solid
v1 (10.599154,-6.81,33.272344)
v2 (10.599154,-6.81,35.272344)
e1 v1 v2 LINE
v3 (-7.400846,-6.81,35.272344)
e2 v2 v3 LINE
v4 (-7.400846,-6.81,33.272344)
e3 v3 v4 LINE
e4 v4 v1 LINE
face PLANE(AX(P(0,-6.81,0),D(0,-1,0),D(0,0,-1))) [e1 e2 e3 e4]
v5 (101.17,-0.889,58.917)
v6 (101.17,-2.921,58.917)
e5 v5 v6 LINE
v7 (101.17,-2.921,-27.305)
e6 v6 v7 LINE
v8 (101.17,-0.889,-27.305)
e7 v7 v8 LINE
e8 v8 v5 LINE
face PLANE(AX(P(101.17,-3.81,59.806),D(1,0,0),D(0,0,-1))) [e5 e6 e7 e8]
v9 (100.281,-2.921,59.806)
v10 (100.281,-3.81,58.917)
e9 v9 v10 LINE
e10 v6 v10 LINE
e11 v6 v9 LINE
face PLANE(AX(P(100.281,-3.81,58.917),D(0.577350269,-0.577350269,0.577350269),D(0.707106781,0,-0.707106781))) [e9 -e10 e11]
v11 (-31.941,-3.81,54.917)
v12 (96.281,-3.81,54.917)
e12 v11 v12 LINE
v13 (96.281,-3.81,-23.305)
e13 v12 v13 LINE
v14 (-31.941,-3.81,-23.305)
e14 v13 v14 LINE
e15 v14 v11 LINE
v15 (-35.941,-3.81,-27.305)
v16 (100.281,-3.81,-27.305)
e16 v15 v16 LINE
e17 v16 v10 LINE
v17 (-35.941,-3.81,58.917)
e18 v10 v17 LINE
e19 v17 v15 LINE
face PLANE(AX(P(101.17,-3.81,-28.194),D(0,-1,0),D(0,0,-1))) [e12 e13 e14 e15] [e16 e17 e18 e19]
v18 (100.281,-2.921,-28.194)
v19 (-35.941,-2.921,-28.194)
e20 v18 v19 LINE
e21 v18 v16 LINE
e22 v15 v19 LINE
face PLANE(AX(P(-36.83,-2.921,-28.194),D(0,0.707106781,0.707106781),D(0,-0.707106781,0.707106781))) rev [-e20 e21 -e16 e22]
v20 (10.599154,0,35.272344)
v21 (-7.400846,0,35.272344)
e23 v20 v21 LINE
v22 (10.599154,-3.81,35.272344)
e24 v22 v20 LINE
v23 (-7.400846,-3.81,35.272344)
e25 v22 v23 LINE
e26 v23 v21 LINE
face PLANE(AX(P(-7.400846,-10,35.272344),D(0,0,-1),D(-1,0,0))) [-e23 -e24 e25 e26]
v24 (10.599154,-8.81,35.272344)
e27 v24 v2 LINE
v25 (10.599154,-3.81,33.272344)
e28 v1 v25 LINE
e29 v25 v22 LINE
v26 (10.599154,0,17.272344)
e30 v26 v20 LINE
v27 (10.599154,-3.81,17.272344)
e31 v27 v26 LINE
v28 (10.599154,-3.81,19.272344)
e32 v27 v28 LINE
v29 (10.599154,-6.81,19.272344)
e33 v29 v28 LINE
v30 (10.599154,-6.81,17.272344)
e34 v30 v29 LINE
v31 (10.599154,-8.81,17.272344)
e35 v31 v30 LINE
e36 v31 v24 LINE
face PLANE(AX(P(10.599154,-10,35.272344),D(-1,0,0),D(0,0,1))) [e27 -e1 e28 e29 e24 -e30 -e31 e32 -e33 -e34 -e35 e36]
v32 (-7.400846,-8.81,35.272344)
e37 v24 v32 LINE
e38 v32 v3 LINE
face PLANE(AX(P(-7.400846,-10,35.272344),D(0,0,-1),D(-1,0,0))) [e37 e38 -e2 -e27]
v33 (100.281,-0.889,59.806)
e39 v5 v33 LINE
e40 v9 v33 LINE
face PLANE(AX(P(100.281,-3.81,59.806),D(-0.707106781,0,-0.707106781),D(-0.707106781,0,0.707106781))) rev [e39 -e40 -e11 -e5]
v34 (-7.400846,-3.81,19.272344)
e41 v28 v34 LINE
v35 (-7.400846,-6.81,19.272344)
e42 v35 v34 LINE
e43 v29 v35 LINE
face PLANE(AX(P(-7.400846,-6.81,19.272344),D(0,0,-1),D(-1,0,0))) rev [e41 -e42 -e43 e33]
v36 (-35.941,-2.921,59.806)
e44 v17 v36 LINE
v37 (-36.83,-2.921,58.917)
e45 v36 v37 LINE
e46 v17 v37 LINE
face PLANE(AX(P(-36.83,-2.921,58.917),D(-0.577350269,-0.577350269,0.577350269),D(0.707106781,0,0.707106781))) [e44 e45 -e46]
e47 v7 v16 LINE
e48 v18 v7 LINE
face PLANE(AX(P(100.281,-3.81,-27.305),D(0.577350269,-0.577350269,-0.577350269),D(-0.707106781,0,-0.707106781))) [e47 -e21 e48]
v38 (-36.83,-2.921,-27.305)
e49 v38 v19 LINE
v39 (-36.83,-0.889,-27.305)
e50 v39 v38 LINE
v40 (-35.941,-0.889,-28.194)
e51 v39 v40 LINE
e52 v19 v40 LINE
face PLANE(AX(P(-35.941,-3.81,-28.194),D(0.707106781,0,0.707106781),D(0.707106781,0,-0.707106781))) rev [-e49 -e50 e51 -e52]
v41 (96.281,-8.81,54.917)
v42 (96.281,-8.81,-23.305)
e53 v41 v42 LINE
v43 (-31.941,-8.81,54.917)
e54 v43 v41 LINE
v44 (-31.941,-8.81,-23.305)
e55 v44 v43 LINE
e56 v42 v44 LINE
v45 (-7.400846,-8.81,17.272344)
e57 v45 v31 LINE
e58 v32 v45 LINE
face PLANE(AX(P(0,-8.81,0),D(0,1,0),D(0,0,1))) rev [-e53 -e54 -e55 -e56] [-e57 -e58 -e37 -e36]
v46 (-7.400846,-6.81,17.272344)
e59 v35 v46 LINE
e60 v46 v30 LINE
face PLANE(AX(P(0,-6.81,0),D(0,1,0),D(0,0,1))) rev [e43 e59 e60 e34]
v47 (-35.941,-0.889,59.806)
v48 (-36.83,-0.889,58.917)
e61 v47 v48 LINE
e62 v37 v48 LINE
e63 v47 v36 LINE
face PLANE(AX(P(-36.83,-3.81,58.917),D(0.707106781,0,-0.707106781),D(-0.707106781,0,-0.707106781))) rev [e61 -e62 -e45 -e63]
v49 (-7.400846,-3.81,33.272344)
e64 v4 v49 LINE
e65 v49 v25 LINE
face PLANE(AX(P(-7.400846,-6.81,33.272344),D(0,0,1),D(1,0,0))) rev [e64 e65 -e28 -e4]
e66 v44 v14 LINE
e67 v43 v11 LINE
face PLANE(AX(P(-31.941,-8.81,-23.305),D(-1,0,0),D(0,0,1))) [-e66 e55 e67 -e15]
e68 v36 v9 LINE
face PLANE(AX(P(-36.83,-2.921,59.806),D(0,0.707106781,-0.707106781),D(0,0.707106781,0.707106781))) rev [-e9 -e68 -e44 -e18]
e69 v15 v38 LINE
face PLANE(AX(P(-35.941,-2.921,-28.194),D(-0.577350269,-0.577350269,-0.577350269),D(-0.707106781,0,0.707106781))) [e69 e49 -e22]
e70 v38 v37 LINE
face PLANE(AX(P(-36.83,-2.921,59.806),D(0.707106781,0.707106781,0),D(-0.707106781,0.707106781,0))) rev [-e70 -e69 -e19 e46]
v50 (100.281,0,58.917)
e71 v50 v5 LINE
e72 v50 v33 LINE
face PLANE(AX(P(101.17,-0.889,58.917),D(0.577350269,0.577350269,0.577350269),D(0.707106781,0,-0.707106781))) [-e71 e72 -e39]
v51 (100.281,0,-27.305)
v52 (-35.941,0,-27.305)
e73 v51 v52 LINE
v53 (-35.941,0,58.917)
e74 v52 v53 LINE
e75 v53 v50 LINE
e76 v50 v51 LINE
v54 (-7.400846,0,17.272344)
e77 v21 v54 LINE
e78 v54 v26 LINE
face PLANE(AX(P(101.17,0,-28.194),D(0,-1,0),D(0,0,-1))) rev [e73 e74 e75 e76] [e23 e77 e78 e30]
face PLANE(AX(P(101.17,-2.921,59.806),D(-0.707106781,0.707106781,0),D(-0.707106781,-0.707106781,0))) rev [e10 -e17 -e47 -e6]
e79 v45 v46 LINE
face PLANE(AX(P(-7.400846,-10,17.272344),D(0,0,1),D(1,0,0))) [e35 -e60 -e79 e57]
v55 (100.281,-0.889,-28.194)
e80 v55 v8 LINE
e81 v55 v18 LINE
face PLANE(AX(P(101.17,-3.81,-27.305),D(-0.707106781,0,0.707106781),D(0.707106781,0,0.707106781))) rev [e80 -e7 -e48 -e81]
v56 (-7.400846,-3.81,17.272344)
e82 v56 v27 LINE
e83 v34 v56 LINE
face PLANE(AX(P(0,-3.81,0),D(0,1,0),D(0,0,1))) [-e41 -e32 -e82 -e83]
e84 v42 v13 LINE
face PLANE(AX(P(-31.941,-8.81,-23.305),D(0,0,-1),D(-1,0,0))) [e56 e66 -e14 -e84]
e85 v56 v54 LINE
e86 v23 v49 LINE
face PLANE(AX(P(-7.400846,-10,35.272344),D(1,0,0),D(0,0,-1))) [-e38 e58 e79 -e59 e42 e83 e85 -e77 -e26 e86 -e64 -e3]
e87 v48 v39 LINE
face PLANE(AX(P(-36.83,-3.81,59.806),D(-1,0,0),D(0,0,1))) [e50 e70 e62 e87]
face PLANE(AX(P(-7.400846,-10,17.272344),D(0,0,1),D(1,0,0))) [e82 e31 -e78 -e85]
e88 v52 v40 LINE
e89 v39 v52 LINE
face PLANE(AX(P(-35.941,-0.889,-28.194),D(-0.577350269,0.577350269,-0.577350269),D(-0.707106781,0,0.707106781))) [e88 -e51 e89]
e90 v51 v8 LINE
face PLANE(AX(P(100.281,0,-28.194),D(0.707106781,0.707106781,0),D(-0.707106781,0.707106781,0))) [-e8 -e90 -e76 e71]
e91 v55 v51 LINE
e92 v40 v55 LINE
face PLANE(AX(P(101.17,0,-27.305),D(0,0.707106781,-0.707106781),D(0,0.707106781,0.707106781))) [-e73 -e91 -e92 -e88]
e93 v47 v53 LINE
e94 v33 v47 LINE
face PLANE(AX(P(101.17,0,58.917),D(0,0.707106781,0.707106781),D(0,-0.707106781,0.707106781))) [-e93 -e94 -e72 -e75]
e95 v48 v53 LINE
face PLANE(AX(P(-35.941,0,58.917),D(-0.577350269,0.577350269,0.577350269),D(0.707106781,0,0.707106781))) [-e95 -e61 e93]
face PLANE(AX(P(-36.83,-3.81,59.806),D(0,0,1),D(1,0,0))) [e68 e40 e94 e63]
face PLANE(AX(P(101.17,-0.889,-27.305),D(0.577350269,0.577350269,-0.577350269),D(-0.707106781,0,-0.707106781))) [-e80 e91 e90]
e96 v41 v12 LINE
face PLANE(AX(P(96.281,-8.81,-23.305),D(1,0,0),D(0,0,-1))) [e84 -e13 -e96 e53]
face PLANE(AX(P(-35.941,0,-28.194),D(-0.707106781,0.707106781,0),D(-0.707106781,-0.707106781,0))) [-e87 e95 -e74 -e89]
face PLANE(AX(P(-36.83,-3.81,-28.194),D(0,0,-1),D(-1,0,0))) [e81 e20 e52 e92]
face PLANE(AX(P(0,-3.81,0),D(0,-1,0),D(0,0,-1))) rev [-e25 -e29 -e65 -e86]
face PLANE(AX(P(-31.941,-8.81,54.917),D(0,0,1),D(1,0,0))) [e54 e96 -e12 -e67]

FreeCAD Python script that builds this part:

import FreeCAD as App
import Part
import Sketcher

V = App.Vector
Q = App.Units.Quantity


def add_polygon(sketch, points):
    """Adds a closed chain of lines whose ends are joined by coincident constraints."""
    first, n = sketch.GeometryCount, len(points)
    for a, b in zip(points, points[1:] + points[:1]):
        sketch.addGeometry(Part.LineSegment(App.Vector(*a, 0), App.Vector(*b, 0)), False)
    for i in range(n):
        sketch.addConstraint(Sketcher.Constraint("Coincident", first + i, 2, first + (i + 1) % n, 1))

doc = App.newDocument("Part")
body = doc.addObject("PartDesign::Body", "Body")

# Sketch on XZ plane
sketch1 = body.newObject("Sketcher::SketchObject", "Sketch")
sketch1.AttachmentSupport = (doc.getObject("XZ_Plane"), [""])
sketch1.MapMode = "FlatFace"
add_polygon(sketch1, [(-37, -28), (-37, 60), (101, 60), (101, -28)])  # lines 0-3
sketch1.addConstraint([
    Sketcher.Constraint("Vertical", 0),
    Sketcher.Constraint("Horizontal", 1),
    Sketcher.Constraint("Vertical", 2),
    Sketcher.Constraint("Horizontal", 3),
    Sketcher.Constraint("DistanceX", 1, 1, 1, 2, Q("138 mm")),
    Sketcher.Constraint("DistanceY", 0, 1, 0, 2, Q("88 mm")),
    Sketcher.Constraint("DistanceX", 0, 2, -1, 1, Q("36.83 mm")),
    Sketcher.Constraint("DistanceY", -1, 1, 0, 2, Q("59.806 mm")),
])
pad1 = body.newObject("PartDesign::Pad", "Pad")
pad1.Profile = sketch1
pad1.Length = 3.81
doc.recompute()

chamfer = body.newObject("PartDesign::Chamfer", "Chamfer")
chamfer.Base = (pad1, ["Edge1"])
chamfer.UseAllEdges = True
chamfer.Size = 0.889
body2 = doc.addObject("PartDesign::Body", "Body001")

# Sketch on XZ plane
sketch2 = body2.newObject("Sketcher::SketchObject", "Sketch001")
sketch2.AttachmentSupport = (doc.getObject("XZ_Plane001"), [""])
sketch2.MapMode = "FlatFace"
sketch2.AttachmentOffset = App.Placement(V(0, 0, 3.81), App.Rotation())
add_polygon(sketch2, [(-32, -23), (-32, 55), (96, 55), (96, -23)])  # lines 0-3
sketch2.addConstraint([
    Sketcher.Constraint("Vertical", 0),
    Sketcher.Constraint("Horizontal", 1),
    Sketcher.Constraint("Vertical", 2),
    Sketcher.Constraint("Horizontal", 3),
    Sketcher.Constraint("DistanceX", 1, 1, 1, 2, Q("128.222 mm")),
    Sketcher.Constraint("DistanceY", 0, 1, 0, 2, Q("78.222 mm")),
    Sketcher.Constraint("DistanceX", 0, 2, -1, 1, Q("31.941 mm")),
    Sketcher.Constraint("DistanceY", -1, 1, 0, 2, Q("54.917 mm")),
])
pad2 = body2.newObject("PartDesign::Pad", "Pad001")
pad2.Profile = sketch2
pad2.Length = 5
body3 = doc.addObject("PartDesign::Body", "Body002")

# Sketch on XZ plane
sketch3 = body3.newObject("Sketcher::SketchObject", "Sketch002")
sketch3.AttachmentSupport = (doc.getObject("XZ_Plane002"), [""])
sketch3.MapMode = "FlatFace"
add_polygon(sketch3, [(11, 17), (11, 35), (-7, 35), (-7, 17)])  # lines 0-3
sketch3.addConstraint([
    Sketcher.Constraint("Vertical", 0),
    Sketcher.Constraint("Horizontal", 1),
    Sketcher.Constraint("Vertical", 2),
    Sketcher.Constraint("Horizontal", 3),
    Sketcher.Constraint("Equal", 3, 0),
    Sketcher.Constraint("DistanceX", 1, 2, 1, 1, Q("18 mm")),
    Sketcher.Constraint("DistanceX", -1, 1, 0, 2, Q("10.599154 mm")),
    Sketcher.Constraint("DistanceY", -1, 1, 0, 2, Q("35.272344 mm")),
])
pad3 = body3.newObject("PartDesign::Pad", "Pad002")
pad3.Profile = sketch3
pad3.Length = 10
doc.recompute()

body4 = doc.addObject("PartDesign::Body", "Body003")
body4.BaseFeature = body3
boolean = body.newObject("PartDesign::Boolean", "Boolean")
boolean.Type = "Cut"
boolean.addObjects([body4])
doc.recompute()

boolean2 = body2.newObject("PartDesign::Boolean", "Boolean001")
boolean2.Type = "Cut"
boolean2.addObjects([body3])
doc.recompute()

boolean3 = body.newObject("PartDesign::Boolean", "Boolean002")
boolean3.Type = "Fuse"
boolean3.addObjects([body2])

# Sketch on XZ plane
sketch4 = body.newObject("Sketcher::SketchObject", "Sketch003")
sketch4.AttachmentSupport = (doc.getObject("XZ_Plane"), [""])
sketch4.MapMode = "FlatFace"
sketch4.AttachmentOffset = App.Placement(V(0, 0, 3.81), App.Rotation())
add_polygon(sketch4, [(10.6, 17.3), (10.6, 19.3), (-7.4, 19.3), (-7.4, 17.3)])  # lines 0-3
add_polygon(sketch4, [(10.6, 33.3), (10.6, 35.3), (-7.4, 35.3), (-7.4, 33.3)])  # lines 4-7
sketch4.addConstraint([
    Sketcher.Constraint("Vertical", 0),
    Sketcher.Constraint("Horizontal", 1),
    Sketcher.Constraint("Vertical", 2),
    Sketcher.Constraint("Horizontal", 3),
    Sketcher.Constraint("Vertical", 4),
    Sketcher.Constraint("Horizontal", 5),
    Sketcher.Constraint("Vertical", 6),
    Sketcher.Constraint("Horizontal", 7),
    Sketcher.Constraint("Vertical", 3, 2, 4, 2),
    Sketcher.Constraint("Vertical", 2, 2, 5, 2),
    Sketcher.Constraint("Equal", 2, 4),
    Sketcher.Constraint("DistanceX", 1, 2, 1, 1, Q("18 mm")),
    Sketcher.Constraint("DistanceY", 0, 1, 0, 2, Q("2 mm")),
    Sketcher.Constraint("DistanceY", 0, 2, 4, 2, Q("16 mm")),
    Sketcher.Constraint("DistanceX", -1, 1, 0, 2, Q("10.599154 mm")),
    Sketcher.Constraint("DistanceY", -1, 1, 0, 2, Q("19.272344 mm")),
])
pad4 = body.newObject("PartDesign::Pad", "Pad003")
pad4.Profile = sketch4
pad4.Length = 3

doc.recompute()
